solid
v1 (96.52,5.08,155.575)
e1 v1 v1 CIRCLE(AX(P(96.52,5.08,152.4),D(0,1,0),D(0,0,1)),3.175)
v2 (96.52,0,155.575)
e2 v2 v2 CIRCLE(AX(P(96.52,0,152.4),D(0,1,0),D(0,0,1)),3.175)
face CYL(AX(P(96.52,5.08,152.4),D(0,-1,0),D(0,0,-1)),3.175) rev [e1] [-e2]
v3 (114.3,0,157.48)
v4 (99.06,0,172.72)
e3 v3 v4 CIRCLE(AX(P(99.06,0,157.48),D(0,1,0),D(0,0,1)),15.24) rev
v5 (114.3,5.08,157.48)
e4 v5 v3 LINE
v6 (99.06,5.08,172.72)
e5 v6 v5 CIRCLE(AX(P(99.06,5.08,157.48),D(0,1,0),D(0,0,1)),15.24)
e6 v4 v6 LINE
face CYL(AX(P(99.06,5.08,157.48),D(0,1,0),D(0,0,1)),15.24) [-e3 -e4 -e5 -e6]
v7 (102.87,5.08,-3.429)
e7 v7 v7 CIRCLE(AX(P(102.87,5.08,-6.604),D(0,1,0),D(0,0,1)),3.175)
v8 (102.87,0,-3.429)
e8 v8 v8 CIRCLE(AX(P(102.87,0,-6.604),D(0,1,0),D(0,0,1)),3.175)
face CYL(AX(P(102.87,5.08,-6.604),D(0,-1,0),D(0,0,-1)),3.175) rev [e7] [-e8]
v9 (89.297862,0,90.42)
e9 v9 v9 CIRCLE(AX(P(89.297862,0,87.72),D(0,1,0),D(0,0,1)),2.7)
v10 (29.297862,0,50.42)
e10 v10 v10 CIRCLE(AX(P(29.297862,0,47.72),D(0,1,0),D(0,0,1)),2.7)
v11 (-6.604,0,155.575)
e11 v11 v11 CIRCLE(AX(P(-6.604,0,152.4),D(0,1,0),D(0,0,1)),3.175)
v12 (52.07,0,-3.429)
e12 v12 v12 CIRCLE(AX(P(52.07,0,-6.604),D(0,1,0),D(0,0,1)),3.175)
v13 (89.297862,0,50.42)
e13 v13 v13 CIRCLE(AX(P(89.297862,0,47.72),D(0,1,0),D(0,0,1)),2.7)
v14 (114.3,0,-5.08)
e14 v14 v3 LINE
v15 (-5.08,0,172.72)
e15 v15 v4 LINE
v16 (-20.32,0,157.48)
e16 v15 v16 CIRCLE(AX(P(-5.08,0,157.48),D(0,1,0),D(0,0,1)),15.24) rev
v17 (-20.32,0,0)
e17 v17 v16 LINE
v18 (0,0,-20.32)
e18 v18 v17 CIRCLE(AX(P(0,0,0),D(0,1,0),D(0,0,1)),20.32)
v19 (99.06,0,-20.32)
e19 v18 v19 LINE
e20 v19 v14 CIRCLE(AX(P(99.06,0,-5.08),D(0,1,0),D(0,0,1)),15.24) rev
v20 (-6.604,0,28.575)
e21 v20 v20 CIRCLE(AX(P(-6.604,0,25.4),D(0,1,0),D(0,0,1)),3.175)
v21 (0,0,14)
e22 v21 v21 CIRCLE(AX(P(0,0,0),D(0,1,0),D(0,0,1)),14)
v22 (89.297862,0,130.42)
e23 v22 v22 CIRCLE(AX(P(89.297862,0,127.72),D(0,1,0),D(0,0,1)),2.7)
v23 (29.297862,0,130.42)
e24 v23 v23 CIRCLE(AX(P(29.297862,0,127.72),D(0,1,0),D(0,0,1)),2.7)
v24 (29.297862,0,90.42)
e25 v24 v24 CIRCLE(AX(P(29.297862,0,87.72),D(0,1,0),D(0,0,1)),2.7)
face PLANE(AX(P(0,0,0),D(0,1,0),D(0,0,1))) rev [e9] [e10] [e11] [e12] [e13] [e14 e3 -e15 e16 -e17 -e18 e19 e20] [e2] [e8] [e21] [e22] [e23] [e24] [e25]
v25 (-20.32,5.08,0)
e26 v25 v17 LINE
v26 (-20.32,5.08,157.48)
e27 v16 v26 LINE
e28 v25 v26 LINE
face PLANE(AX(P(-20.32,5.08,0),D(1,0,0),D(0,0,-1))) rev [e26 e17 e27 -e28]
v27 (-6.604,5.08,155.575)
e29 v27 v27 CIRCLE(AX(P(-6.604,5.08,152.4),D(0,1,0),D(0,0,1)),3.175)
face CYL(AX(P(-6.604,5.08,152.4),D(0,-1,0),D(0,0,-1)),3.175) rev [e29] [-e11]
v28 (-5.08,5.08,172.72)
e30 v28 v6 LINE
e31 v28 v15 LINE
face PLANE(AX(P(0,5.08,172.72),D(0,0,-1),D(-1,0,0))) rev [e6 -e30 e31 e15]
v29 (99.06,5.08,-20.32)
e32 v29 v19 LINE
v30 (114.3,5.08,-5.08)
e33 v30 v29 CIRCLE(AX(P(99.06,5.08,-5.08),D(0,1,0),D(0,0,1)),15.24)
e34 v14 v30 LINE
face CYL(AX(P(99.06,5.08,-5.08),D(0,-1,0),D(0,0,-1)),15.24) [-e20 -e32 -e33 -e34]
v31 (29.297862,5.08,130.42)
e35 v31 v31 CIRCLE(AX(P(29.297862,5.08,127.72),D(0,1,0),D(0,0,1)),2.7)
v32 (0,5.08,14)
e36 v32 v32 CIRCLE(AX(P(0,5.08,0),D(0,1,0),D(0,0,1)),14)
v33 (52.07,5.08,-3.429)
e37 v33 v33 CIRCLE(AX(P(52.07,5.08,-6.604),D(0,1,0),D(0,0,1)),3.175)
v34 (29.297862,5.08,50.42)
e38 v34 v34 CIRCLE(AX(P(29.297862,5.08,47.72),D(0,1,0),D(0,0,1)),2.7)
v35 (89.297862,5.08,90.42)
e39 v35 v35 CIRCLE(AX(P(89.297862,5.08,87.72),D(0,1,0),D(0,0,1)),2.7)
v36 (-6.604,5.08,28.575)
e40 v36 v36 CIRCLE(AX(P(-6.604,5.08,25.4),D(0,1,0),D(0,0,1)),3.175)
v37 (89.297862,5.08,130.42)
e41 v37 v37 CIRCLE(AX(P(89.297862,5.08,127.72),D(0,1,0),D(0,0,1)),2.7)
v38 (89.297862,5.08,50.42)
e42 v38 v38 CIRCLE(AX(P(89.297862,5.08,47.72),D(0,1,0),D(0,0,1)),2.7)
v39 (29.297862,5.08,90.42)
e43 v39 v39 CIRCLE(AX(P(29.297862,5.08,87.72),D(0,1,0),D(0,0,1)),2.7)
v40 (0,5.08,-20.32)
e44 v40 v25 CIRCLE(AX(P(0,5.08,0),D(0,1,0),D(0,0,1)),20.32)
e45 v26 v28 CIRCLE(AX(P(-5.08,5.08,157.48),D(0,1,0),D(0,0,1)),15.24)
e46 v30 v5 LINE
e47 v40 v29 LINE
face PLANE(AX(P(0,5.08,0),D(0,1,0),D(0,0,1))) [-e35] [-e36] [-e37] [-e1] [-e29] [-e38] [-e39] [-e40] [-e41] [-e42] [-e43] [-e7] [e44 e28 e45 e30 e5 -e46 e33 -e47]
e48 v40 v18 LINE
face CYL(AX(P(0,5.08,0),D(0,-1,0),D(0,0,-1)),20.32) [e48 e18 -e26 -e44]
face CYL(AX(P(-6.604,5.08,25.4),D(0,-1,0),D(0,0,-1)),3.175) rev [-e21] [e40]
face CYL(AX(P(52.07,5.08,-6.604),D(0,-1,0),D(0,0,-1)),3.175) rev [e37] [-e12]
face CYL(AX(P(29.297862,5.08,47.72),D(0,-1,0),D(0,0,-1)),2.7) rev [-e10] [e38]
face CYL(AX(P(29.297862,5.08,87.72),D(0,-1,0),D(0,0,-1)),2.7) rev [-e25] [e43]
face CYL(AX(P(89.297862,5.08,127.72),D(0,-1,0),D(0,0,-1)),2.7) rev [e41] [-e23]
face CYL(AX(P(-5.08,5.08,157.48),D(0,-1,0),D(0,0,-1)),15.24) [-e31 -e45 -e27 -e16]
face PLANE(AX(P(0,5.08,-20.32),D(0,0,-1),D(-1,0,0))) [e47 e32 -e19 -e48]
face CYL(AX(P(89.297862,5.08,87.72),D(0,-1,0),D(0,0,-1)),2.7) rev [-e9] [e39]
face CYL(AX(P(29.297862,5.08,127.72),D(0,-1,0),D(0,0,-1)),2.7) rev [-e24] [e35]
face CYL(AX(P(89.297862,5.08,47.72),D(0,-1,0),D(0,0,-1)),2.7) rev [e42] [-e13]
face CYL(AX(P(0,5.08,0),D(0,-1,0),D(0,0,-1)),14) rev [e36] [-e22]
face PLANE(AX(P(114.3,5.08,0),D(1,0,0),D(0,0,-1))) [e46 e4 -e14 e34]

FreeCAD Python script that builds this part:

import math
import FreeCAD as App
import Part
import Sketcher

V = App.Vector
Q = App.Units.Quantity


def edges_at(feature, points):
    """Names of the edges that pass closest to the given points."""
    edges = feature.Shape.Edges
    near = lambda p: min(range(len(edges)), key=lambda i: edges[i].distToShape(Part.Vertex(*p))[0])
    return sorted({f"Edge{near(p) + 1}" for p in points})

doc = App.newDocument("Part")
params = doc.addObject("Spreadsheet::Sheet", "Params")
for row, (alias, value) in enumerate([
    ("sketch1_radius", "0.8 in"),
    ("sketch1_diameter", "0.25 in"),
    ("sketch1_width", "4.5 in"),
    ("sketch1_height", "6.8 in"),
    ("pad1_length", "0.2 in"),
    ("fillet_radius", "0.6 in"),
], start=1):
    params.set(f"A{row}", alias)
    params.set(f"B{row}", "=" + value)
    params.setAlias(f"B{row}", alias)

body = doc.addObject("PartDesign::Body", "Body")

sketch1 = doc.addObject("Sketcher::SketchObject", "Sketch")
body.addObject(sketch1)
sketch1.AttachmentSupport = (doc.XZ_Plane, [""])
sketch1.MapMode = "FlatFace"
sketch1.addGeometry([
    Part.LineSegment(V(114.3, -20.32, 0), V(0, -20.32, 0)),
    Part.ArcOfCircle(Part.Circle(V(0, 0, 0), V(0, 0, 1), 20.32), math.radians(180), math.radians(270)),
    Part.LineSegment(V(-20.32, 0, 0), V(-20.32, 172.72, 0)),
    Part.LineSegment(V(-20.32, 172.72, 0), V(114.3, 172.72, 0)),
    Part.LineSegment(V(114.3, 172.72, 0), V(114.3, -20.32, 0)),
    Part.Circle(V(-6.604, 152.4, 0), V(0, 0, 1), 3.175),
    Part.Circle(V(29.297862, 127.72, 0), V(0, 0, 1), 2.7),
    Part.Circle(V(29.297862, 87.72, 0), V(0, 0, 1), 2.7),
    Part.Circle(V(96.52, 152.4, 0), V(0, 0, 1), 3.175),
    Part.Circle(V(89.297862, 127.72, 0), V(0, 0, 1), 2.7),
    Part.Circle(V(89.297862, 87.72, 0), V(0, 0, 1), 2.7),
    Part.Circle(V(29.297862, 47.72, 0), V(0, 0, 1), 2.7),
    Part.Circle(V(-6.604, 25.4, 0), V(0, 0, 1), 3.175),
    Part.Circle(V(0, 0, 0), V(0, 0, 1), 14),
    Part.Circle(V(89.297862, 47.72, 0), V(0, 0, 1), 2.7),
    Part.Circle(V(52.07, -6.604, 0), V(0, 0, 1), 3.175),
    Part.Circle(V(102.87, -6.604, 0), V(0, 0, 1), 3.175),
], False)
sketch1.addConstraint([
    Sketcher.Constraint("Tangent", 0, 2, 1, 2),
    Sketcher.Constraint("Tangent", 1, 1, 2, 1),
    Sketcher.Constraint("Coincident", 2, 2, 3, 1),
    Sketcher.Constraint("Coincident", 3, 2, 4, 1),
    Sketcher.Constraint("Coincident", 4, 2, 0, 1),
    Sketcher.Constraint("Horizontal", 0),
    Sketcher.Constraint("Vertical", 2),
    Sketcher.Constraint("Horizontal", 3),
    Sketcher.Constraint("Vertical", 4),
    Sketcher.Constraint("Coincident", 1, 3, -1, 1),
    Sketcher.Constraint("Coincident", 13, 3, -1, 1),
    Sketcher.Constraint("Equal", 6, 7),
    Sketcher.Constraint("Equal", 5, 8),
    Sketcher.Constraint("Equal", 7, 9),
    Sketcher.Constraint("Equal", 9, 10),
    Sketcher.Constraint("Equal", 10, 11),
    Sketcher.Constraint("Equal", 8, 12),
    Sketcher.Constraint("Equal", 11, 14),
    Sketcher.Constraint("Equal", 12, 15),
    Sketcher.Constraint("Equal", 15, 16),
    Sketcher.Constraint("Horizontal", 5, 3, 8, 3),
    Sketcher.Constraint("Horizontal", 6, 3, 9, 3),
    Sketcher.Constraint("Horizontal", 7, 3, 10, 3),
    Sketcher.Constraint("Horizontal", 11, 3, 14, 3),
    Sketcher.Constraint("Horizontal", 15, 3, 16, 3),
    Sketcher.Constraint("Vertical", 6, 3, 7, 3),
    Sketcher.Constraint("Vertical", 9, 3, 10, 3),
    Sketcher.Constraint("Vertical", 7, 3, 11, 3),
    Sketcher.Constraint("Vertical", 5, 3, 12, 3),
    Sketcher.Constraint("Vertical", 10, 3, 14, 3),
    Sketcher.Constraint("Radius", 1, Q("0.8 in")),
    Sketcher.Constraint("Diameter", 5, Q("0.25 in")),
    Sketcher.Constraint("DistanceX", 0, 2, 0, 1, Q("4.5 in")),
    Sketcher.Constraint("DistanceY", 2, 1, 2, 2, Q("6.8 in")),
    Sketcher.Constraint("DistanceY", -1, 1, 5, 3, Q("6 in")),
    Sketcher.Constraint("DistanceY", -1, 1, 12, 3, Q("1 in")),
    Sketcher.Constraint("DistanceX", 15, 3, 16, 3, Q("2 in")),
    Sketcher.Constraint("DistanceX", -1, 1, 8, 3, Q("3.8 in")),
    Sketcher.Constraint("Diameter", 6, Q("5.4 mm")),
    Sketcher.Constraint("Diameter", 13, Q("28 mm")),
    Sketcher.Constraint("DistanceX", 5, 3, -1, 1, Q("0.26 in")),
    Sketcher.Constraint("DistanceX", -1, 1, 15, 3, Q("2.05 in")),
    Sketcher.Constraint("DistanceY", 15, 3, -1, 1, Q("0.26 in")),
    Sketcher.Constraint("DistanceY", -1, 1, 6, 3, Q("127.72 mm")),
    Sketcher.Constraint("DistanceY", -1, 1, 7, 3, Q("87.72 mm")),
    Sketcher.Constraint("DistanceY", -1, 1, 11, 3, Q("47.72 mm")),
    Sketcher.Constraint("DistanceX", 6, 3, 9, 3, Q("60 mm")),
    Sketcher.Constraint("DistanceX", -1, 1, 6, 3, Q("29.297862 mm")),
])
sketch1.setExpression("Constraints[30]", "Params.sketch1_radius")
sketch1.setExpression("Constraints[31]", "Params.sketch1_diameter")
sketch1.setExpression("Constraints[32]", "Params.sketch1_width")
sketch1.setExpression("Constraints[33]", "Params.sketch1_height")
pad1 = doc.addObject("PartDesign::Pad", "Pad")
body.addObject(pad1)
pad1.Profile = sketch1
pad1.setExpression("Length", "Params.pad1_length")
pad1.Reversed = True
doc.recompute()

fillet = doc.addObject("PartDesign::Fillet", "Fillet")
body.addObject(fillet)
fillet.Base = (pad1, edges_at(pad1, [(114.3, 2.54, -20.32), (114.3, 2.54, 172.72), (-20.32, 2.54, 172.72)]))
fillet.setExpression("Radius", "Params.fillet_radius")

doc.recompute()
